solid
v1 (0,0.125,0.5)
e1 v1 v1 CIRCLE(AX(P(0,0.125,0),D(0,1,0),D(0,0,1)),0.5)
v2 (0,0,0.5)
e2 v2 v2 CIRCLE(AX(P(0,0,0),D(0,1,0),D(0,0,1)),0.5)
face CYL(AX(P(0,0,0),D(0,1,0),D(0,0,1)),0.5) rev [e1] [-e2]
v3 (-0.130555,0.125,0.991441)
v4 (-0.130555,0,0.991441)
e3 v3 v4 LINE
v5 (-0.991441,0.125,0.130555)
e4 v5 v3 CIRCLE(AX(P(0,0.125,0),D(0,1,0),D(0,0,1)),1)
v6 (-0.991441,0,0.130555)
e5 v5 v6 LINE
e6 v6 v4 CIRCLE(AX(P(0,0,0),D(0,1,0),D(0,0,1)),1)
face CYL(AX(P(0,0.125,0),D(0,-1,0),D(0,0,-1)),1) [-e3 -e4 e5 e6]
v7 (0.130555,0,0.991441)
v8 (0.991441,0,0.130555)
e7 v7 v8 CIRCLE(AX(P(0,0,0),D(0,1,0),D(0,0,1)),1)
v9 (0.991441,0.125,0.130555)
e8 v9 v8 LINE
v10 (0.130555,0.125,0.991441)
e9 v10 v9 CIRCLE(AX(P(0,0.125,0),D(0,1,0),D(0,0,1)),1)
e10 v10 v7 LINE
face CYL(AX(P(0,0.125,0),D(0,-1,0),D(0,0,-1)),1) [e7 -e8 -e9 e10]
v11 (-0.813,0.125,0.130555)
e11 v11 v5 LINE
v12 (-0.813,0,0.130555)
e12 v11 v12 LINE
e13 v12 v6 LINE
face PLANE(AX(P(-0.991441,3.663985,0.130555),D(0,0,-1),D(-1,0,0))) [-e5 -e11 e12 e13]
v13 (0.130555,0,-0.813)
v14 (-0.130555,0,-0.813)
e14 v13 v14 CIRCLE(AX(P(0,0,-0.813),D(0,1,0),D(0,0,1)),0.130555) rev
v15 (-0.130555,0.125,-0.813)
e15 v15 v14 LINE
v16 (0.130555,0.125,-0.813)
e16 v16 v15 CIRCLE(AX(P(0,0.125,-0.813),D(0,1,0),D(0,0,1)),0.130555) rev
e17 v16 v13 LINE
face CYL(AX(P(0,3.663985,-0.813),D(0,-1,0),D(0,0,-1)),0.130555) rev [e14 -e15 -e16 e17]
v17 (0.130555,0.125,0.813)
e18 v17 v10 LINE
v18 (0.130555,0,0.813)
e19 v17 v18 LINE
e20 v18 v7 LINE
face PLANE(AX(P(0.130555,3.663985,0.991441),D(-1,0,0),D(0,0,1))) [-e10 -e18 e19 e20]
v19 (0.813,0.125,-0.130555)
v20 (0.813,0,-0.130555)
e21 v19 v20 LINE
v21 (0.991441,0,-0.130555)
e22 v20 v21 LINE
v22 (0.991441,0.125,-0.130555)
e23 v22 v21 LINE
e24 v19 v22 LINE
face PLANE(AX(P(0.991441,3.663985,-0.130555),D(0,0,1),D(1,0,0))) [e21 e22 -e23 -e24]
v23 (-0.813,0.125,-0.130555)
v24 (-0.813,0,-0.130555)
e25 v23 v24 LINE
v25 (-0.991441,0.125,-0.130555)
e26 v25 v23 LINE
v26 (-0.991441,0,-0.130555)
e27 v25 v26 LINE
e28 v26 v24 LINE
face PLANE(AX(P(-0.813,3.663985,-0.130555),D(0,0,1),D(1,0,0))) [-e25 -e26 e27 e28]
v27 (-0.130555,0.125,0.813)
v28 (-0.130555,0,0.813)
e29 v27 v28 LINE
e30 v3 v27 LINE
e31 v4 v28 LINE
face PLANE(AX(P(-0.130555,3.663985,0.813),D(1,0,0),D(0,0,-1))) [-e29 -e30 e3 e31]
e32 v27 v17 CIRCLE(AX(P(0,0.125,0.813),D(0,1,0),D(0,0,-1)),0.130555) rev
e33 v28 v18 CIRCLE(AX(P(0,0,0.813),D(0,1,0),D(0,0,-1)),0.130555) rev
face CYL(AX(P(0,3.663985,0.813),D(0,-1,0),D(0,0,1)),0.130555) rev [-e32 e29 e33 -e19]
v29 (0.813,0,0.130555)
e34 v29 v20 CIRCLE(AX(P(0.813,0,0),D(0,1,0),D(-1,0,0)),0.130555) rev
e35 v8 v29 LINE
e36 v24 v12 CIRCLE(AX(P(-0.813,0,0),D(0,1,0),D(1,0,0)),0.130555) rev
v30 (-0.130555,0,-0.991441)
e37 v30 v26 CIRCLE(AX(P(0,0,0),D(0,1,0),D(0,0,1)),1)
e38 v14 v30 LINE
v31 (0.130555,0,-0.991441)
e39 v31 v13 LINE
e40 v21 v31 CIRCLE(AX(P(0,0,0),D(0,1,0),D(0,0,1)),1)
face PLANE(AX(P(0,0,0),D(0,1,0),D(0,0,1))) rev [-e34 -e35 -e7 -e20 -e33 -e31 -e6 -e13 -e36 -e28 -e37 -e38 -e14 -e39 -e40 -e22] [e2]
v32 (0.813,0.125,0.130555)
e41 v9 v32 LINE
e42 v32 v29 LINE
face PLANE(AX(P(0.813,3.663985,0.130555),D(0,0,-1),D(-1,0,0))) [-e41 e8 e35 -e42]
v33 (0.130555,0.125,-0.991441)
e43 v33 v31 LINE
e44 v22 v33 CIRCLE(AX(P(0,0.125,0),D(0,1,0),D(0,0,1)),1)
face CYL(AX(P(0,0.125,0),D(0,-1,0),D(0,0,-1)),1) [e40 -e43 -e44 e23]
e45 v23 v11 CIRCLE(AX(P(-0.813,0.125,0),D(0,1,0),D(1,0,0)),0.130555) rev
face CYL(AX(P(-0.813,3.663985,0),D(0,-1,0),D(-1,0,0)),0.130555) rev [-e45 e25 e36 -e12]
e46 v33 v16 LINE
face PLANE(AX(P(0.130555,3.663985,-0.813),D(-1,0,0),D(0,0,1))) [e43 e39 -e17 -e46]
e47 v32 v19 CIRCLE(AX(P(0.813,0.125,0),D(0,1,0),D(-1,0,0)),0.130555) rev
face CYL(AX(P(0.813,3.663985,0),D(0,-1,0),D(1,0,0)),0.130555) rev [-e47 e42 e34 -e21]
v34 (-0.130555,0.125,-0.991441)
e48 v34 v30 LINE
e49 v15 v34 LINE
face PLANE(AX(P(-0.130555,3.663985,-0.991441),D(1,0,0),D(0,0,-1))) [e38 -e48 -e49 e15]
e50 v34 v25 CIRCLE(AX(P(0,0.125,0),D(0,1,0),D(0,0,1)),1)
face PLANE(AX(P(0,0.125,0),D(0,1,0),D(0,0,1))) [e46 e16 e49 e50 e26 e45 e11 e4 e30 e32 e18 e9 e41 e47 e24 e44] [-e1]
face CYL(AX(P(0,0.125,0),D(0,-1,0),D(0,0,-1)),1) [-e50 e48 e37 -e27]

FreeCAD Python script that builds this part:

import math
import FreeCAD as App
import Part
import Sketcher
Q = App.Units.Quantity

doc = App.newDocument("Part")
body = doc.addObject("PartDesign::Body", "Body")

# Sketch on XZ plane
sketch1 = doc.addObject("Sketcher::SketchObject", "Sketch")
body.addObject(sketch1)
sketch1.AttachmentSupport = (doc.XZ_Plane, [""])
sketch1.MapMode = "FlatFace"
sketch1.addGeometry(Part.Circle(App.Vector(0, 0, 0), App.Vector(0, 0, 1), 1), False)
sketch1.addConstraint(Sketcher.Constraint("Coincident", 0, 3, -1, 1))
sketch1.addConstraint(Sketcher.Constraint("Diameter", 0, Q("2 mm")))
pad1 = doc.addObject("PartDesign::Pad", "Pad")
body.addObject(pad1)
pad1.Profile = sketch1
pad1.Length = 0.125
pad1.Reversed = True

# Sketch on XZ plane
sketch2 = doc.addObject("Sketcher::SketchObject", "Sketch001")
body.addObject(sketch2)
sketch2.AttachmentSupport = (doc.XZ_Plane, [""])
sketch2.MapMode = "FlatFace"
sketch2.AttachmentOffset = App.Placement(App.Vector(0, 0, -0.125), App.Rotation())
sketch2.addGeometry(Part.ArcOfCircle(Part.Circle(App.Vector(0, -0.81, 0), App.Vector(0, 0, 1), 0.13), math.radians(0), math.radians(180)), False)
sketch2.addGeometry(Part.LineSegment(App.Vector(0.13, -0.81, 0), App.Vector(0.13, -44.73, 0)), False)
sketch2.addGeometry(Part.LineSegment(App.Vector(0.13, -44.73, 0), App.Vector(-0.13, -44.73, 0)), False)
sketch2.addGeometry(Part.LineSegment(App.Vector(-0.13, -44.73, 0), App.Vector(-0.13, -0.81, 0)), False)
sketch2.addConstraint(Sketcher.Constraint("Tangent", 0, 1, 1, 1))
sketch2.addConstraint(Sketcher.Constraint("Coincident", 1, 2, 2, 1))
sketch2.addConstraint(Sketcher.Constraint("Coincident", 2, 2, 3, 1))
sketch2.addConstraint(Sketcher.Constraint("Tangent", 3, 2, 0, 2))
sketch2.addConstraint(Sketcher.Constraint("Vertical", 1))
sketch2.addConstraint(Sketcher.Constraint("Horizontal", 2))
sketch2.addConstraint(Sketcher.Constraint("Vertical", 3))
sketch2.addConstraint(Sketcher.Constraint("PointOnObject", 0, 3, -2))
sketch2.addConstraint(Sketcher.Constraint("DistanceY", 1, 2, 1, 1, Q("43.918301 mm")))
sketch2.addConstraint(Sketcher.Constraint("DistanceY", 0, 3, -1, 1, Q("0.813 mm")))
sketch2.addConstraint(Sketcher.Constraint("Radius", 0, Q("0.130555 mm")))
pocket1 = doc.addObject("PartDesign::Pocket", "Pocket")
body.addObject(pocket1)
pocket1.Profile = sketch2
pocket1.Length = 4.839454
pocket1.Midplane = True
doc.recompute()

polarpattern = doc.addObject("PartDesign::PolarPattern", "PolarPattern")
body.addObject(polarpattern)
polarpattern.Originals = [pocket1]
polarpattern.Axis = (doc.Y_Axis, [""])
polarpattern.Angle = 360
polarpattern.Occurrences = 4
body.Tip = polarpattern

# Sketch on XZ plane
sketch3 = doc.addObject("Sketcher::SketchObject", "Sketch002")
body.addObject(sketch3)
sketch3.AttachmentSupport = (doc.XZ_Plane, [""])
sketch3.MapMode = "FlatFace"
sketch3.AttachmentOffset = App.Placement(App.Vector(0, 0, -0.125), App.Rotation())
sketch3.addGeometry(Part.Circle(App.Vector(0, 0, 0), App.Vector(0, 0, 1), 0.5), False)
sketch3.addConstraint(Sketcher.Constraint("Coincident", 0, 3, -1, 1))
sketch3.addConstraint(Sketcher.Constraint("Diameter", 0, Q("1 mm")))
pocket2 = doc.addObject("PartDesign::Pocket", "Pocket001")
body.addObject(pocket2)
pocket2.Profile = sketch3
pocket2.Type = "ThroughAll"
pocket2.Reversed = True

doc.recompute()
